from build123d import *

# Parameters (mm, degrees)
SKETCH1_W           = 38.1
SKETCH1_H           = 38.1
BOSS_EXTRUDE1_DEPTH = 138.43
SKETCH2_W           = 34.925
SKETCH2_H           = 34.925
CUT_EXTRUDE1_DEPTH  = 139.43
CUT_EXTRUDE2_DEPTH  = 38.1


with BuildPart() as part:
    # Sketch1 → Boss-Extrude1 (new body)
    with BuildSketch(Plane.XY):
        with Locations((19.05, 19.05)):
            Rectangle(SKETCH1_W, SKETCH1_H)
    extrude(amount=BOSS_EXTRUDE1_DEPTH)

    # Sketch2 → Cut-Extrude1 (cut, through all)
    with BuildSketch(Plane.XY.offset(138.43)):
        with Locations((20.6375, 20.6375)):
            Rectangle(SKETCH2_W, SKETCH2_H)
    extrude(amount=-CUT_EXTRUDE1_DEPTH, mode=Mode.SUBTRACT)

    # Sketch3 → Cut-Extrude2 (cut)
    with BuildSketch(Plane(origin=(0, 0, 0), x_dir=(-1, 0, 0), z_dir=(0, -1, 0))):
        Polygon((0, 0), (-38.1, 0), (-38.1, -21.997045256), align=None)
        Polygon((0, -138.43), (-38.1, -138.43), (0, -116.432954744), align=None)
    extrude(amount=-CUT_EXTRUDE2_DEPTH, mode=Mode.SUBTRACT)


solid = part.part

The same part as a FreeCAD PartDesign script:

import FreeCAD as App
import Part
import Sketcher
from FreeCAD import Vector
Q = App.Units.Quantity

doc = App.newDocument("Part")
params = doc.addObject("Spreadsheet::Sheet", "Params")
for row, (alias, value) in enumerate([
    ("sketch1_width", "1.5 in"),
    ("pad1_length", "5.45 in"),
    ("sketch2_width", "1.375 in"),
    ("sketch3_width", "1.5 in"),
    ("pocket2_length", "1.5 in"),
], start=1):
    params.set(f"A{row}", alias)
    params.set(f"B{row}", "=" + value)
    params.setAlias(f"B{row}", alias)

body = doc.addObject("PartDesign::Body", "Body")

# Sketch on XY plane
sketch1 = body.newObject("Sketcher::SketchObject", "Sketch")
sketch1.AttachmentSupport = (doc.getObject("XY_Plane"), [""])
sketch1.MapMode = "FlatFace"
sketch1.addGeometry([
    Part.LineSegment(Vector(0, 38, 0), Vector(0, 0, 0)),
    Part.LineSegment(Vector(0, 0, 0), Vector(38, 0, 0)),
    Part.LineSegment(Vector(38, 0, 0), Vector(38, 38, 0)),
    Part.LineSegment(Vector(38, 38, 0), Vector(0, 38, 0)),
], False)
sketch1.addConstraint([
    Sketcher.Constraint("Coincident", 0, 2, 1, 1),
    Sketcher.Constraint("Coincident", 1, 2, 2, 1),
    Sketcher.Constraint("Coincident", 2, 2, 3, 1),
    Sketcher.Constraint("Coincident", 3, 2, 0, 1),
    Sketcher.Constraint("Vertical", 0),
    Sketcher.Constraint("Horizontal", 1),
    Sketcher.Constraint("Vertical", 2),
    Sketcher.Constraint("Horizontal", 3),
    Sketcher.Constraint("Coincident", 0, 2, -1, 1),
    Sketcher.Constraint("Equal", 3, 0),
    Sketcher.Constraint("DistanceX", 1, 1, 1, 2, Q("1.5 in")),
])
sketch1.setExpression("Constraints[10]", "Params.sketch1_width")
pad1 = body.newObject("PartDesign::Pad", "Pad")
pad1.Profile = sketch1
pad1.setExpression("Length", "Params.pad1_length")

# Sketch on XY plane
sketch2 = body.newObject("Sketcher::SketchObject", "Sketch001")
sketch2.AttachmentSupport = (doc.getObject("XY_Plane"), [""])
sketch2.MapMode = "FlatFace"
sketch2.AttachmentOffset = App.Placement(Vector(0, 0, 5.45 * 25.4), App.Rotation())
sketch2.addGeometry([
    Part.LineSegment(Vector(3, 38, 0), Vector(3, 3, 0)),
    Part.LineSegment(Vector(3, 3, 0), Vector(38, 3, 0)),
    Part.LineSegment(Vector(38, 3, 0), Vector(38, 38, 0)),
    Part.LineSegment(Vector(38, 38, 0), Vector(3, 38, 0)),
], False)
sketch2.addConstraint([
    Sketcher.Constraint("Coincident", 0, 2, 1, 1),
    Sketcher.Constraint("Coincident", 1, 2, 2, 1),
    Sketcher.Constraint("Coincident", 2, 2, 3, 1),
    Sketcher.Constraint("Coincident", 3, 2, 0, 1),
    Sketcher.Constraint("Vertical", 0),
    Sketcher.Constraint("Horizontal", 1),
    Sketcher.Constraint("Vertical", 2),
    Sketcher.Constraint("Horizontal", 3),
    Sketcher.Constraint("Equal", 3, 0),
    Sketcher.Constraint("DistanceX", -1, 1, 1, 2, Q("1.5 in")),
    Sketcher.Constraint("DistanceY", -1, 1, 2, 2, Q("1.5 in")),
    Sketcher.Constraint("DistanceX", 1, 1, 1, 2, Q("1.375 in")),
])
sketch2.setExpression("Constraints[11]", "Params.sketch2_width")
pocket1 = body.newObject("PartDesign::Pocket", "Pocket")
pocket1.Profile = sketch2
pocket1.Type = "ThroughAll"

# Sketch on XZ plane
sketch3 = body.newObject("Sketcher::SketchObject", "Sketch002")
sketch3.AttachmentSupport = (doc.getObject("XZ_Plane"), [""])
sketch3.MapMode = "FlatFace"
sketch3.addGeometry([
    Part.LineSegment(Vector(0, 0, 0), Vector(38, 0, 0)),  # 0
    Part.LineSegment(Vector(38, 0, 0), Vector(38, 22, 0)),  # 1
    Part.LineSegment(Vector(38, 22, 0), Vector(0, 0, 0)),  # 2
    Part.LineSegment(Vector(38, 138, 0), Vector(0, 138, 0)),  # 3
    Part.LineSegment(Vector(0, 138, 0), Vector(0, 116, 0)),  # 4
    Part.LineSegment(Vector(0, 116, 0), Vector(38, 138, 0)),  # 5
], False)
sketch3.addConstraint([
    Sketcher.Constraint("Coincident", 0, 2, 1, 1),
    Sketcher.Constraint("Coincident", 1, 2, 2, 1),
    Sketcher.Constraint("Coincident", 2, 2, 0, 1),
    Sketcher.Constraint("Coincident", 3, 2, 4, 1),
    Sketcher.Constraint("Coincident", 4, 2, 5, 1),
    Sketcher.Constraint("Coincident", 5, 2, 3, 1),
    Sketcher.Constraint("Horizontal", 0),
    Sketcher.Constraint("Vertical", 1),
    Sketcher.Constraint("Horizontal", 3),
    Sketcher.Constraint("Vertical", 4),
    Sketcher.Constraint("Coincident", 2, 2, -1, 1),
    Sketcher.Constraint("PointOnObject", 3, 2, -2),
    Sketcher.Constraint("Parallel", 2, 5),
    Sketcher.Constraint("Vertical", 1, 2, 5, 2),
    Sketcher.Constraint("DistanceX", 0, 1, 0, 2, Q("1.5 in")),
    Sketcher.Constraint("Angle", 2, Q("-150 deg")),
    Sketcher.Constraint("DistanceY", -1, 1, 3, 2, Q("5.45 in")),
])
sketch3.setExpression("Constraints[14]", "Params.sketch3_width")
pocket2 = body.newObject("PartDesign::Pocket", "Pocket001")
pocket2.Profile = sketch3
pocket2.setExpression("Length", "Params.pocket2_length")

doc.recompute()
